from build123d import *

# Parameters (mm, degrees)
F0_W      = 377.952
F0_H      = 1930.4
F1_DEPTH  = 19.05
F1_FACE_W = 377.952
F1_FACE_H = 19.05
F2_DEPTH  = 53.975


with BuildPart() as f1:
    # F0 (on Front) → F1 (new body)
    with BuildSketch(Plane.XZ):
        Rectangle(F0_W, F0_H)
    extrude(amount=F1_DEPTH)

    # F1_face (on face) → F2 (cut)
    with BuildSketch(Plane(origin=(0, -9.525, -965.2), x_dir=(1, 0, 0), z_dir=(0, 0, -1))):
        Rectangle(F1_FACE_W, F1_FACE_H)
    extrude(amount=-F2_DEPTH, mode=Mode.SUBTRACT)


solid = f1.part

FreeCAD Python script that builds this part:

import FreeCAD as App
import Part
import Sketcher

V = App.Vector
Q = App.Units.Quantity


def add_polygon(sketch, points):
    """Adds a closed chain of lines whose ends are joined by coincident constraints."""
    first, n = sketch.GeometryCount, len(points)
    for a, b in zip(points, points[1:] + points[:1]):
        sketch.addGeometry(Part.LineSegment(App.Vector(*a, 0), App.Vector(*b, 0)), False)
    for i in range(n):
        sketch.addConstraint(Sketcher.Constraint("Coincident", first + i, 2, first + (i + 1) % n, 1))

doc = App.newDocument("Part")
body = doc.addObject("PartDesign::Body", "Body")

# Sketch on XZ plane
sketch1 = body.newObject("Sketcher::SketchObject", "Sketch")
sketch1.AttachmentSupport = (doc.getObject("XZ_Plane"), [""])
sketch1.MapMode = "FlatFace"
add_polygon(sketch1, [(-189, 965), (-189, -965), (189, -965), (189, 965)])  # lines 0-3
sketch1.addConstraint([
    Sketcher.Constraint("Vertical", 0),
    Sketcher.Constraint("Horizontal", 1),
    Sketcher.Constraint("Vertical", 2),
    Sketcher.Constraint("Horizontal", 3),
    Sketcher.Constraint("Symmetric", 0, 2, 2, 2, -1, 1),
    Sketcher.Constraint("DistanceY", 0, 2, 0, 1, Q("76 in")),
    Sketcher.Constraint("DistanceX", 1, 1, 1, 2, Q("14.88 in")),
])
pad1 = body.newObject("PartDesign::Pad", "Pad")
pad1.Profile = sketch1
pad1.Length = Q("0.75 in")

# Sketch on XY plane
sketch2 = body.newObject("Sketcher::SketchObject", "Sketch001")
sketch2.AttachmentSupport = (doc.getObject("XY_Plane"), [""])
sketch2.MapMode = "FlatFace"
sketch2.AttachmentOffset = App.Placement(V(0, 0, -38 * 25.4), App.Rotation())
add_polygon(sketch2, [(-189, -19), (-189, 0), (189, 0), (189, -19)])  # lines 0-3
sketch2.addConstraint([
    Sketcher.Constraint("Vertical", 0),
    Sketcher.Constraint("Horizontal", 1),
    Sketcher.Constraint("Vertical", 2),
    Sketcher.Constraint("Horizontal", 3),
    Sketcher.Constraint("Symmetric", 0, 2, 1, 2, -1, 1),
    Sketcher.Constraint("DistanceX", 1, 1, 1, 2, Q("14.88 in")),
    Sketcher.Constraint("DistanceY", 0, 1, 0, 2, Q("0.75 in")),
])
pocket1 = body.newObject("PartDesign::Pocket", "Pocket")
pocket1.Profile = sketch2
pocket1.Length = Q("2.125 in")
pocket1.Reversed = True

doc.recompute()
